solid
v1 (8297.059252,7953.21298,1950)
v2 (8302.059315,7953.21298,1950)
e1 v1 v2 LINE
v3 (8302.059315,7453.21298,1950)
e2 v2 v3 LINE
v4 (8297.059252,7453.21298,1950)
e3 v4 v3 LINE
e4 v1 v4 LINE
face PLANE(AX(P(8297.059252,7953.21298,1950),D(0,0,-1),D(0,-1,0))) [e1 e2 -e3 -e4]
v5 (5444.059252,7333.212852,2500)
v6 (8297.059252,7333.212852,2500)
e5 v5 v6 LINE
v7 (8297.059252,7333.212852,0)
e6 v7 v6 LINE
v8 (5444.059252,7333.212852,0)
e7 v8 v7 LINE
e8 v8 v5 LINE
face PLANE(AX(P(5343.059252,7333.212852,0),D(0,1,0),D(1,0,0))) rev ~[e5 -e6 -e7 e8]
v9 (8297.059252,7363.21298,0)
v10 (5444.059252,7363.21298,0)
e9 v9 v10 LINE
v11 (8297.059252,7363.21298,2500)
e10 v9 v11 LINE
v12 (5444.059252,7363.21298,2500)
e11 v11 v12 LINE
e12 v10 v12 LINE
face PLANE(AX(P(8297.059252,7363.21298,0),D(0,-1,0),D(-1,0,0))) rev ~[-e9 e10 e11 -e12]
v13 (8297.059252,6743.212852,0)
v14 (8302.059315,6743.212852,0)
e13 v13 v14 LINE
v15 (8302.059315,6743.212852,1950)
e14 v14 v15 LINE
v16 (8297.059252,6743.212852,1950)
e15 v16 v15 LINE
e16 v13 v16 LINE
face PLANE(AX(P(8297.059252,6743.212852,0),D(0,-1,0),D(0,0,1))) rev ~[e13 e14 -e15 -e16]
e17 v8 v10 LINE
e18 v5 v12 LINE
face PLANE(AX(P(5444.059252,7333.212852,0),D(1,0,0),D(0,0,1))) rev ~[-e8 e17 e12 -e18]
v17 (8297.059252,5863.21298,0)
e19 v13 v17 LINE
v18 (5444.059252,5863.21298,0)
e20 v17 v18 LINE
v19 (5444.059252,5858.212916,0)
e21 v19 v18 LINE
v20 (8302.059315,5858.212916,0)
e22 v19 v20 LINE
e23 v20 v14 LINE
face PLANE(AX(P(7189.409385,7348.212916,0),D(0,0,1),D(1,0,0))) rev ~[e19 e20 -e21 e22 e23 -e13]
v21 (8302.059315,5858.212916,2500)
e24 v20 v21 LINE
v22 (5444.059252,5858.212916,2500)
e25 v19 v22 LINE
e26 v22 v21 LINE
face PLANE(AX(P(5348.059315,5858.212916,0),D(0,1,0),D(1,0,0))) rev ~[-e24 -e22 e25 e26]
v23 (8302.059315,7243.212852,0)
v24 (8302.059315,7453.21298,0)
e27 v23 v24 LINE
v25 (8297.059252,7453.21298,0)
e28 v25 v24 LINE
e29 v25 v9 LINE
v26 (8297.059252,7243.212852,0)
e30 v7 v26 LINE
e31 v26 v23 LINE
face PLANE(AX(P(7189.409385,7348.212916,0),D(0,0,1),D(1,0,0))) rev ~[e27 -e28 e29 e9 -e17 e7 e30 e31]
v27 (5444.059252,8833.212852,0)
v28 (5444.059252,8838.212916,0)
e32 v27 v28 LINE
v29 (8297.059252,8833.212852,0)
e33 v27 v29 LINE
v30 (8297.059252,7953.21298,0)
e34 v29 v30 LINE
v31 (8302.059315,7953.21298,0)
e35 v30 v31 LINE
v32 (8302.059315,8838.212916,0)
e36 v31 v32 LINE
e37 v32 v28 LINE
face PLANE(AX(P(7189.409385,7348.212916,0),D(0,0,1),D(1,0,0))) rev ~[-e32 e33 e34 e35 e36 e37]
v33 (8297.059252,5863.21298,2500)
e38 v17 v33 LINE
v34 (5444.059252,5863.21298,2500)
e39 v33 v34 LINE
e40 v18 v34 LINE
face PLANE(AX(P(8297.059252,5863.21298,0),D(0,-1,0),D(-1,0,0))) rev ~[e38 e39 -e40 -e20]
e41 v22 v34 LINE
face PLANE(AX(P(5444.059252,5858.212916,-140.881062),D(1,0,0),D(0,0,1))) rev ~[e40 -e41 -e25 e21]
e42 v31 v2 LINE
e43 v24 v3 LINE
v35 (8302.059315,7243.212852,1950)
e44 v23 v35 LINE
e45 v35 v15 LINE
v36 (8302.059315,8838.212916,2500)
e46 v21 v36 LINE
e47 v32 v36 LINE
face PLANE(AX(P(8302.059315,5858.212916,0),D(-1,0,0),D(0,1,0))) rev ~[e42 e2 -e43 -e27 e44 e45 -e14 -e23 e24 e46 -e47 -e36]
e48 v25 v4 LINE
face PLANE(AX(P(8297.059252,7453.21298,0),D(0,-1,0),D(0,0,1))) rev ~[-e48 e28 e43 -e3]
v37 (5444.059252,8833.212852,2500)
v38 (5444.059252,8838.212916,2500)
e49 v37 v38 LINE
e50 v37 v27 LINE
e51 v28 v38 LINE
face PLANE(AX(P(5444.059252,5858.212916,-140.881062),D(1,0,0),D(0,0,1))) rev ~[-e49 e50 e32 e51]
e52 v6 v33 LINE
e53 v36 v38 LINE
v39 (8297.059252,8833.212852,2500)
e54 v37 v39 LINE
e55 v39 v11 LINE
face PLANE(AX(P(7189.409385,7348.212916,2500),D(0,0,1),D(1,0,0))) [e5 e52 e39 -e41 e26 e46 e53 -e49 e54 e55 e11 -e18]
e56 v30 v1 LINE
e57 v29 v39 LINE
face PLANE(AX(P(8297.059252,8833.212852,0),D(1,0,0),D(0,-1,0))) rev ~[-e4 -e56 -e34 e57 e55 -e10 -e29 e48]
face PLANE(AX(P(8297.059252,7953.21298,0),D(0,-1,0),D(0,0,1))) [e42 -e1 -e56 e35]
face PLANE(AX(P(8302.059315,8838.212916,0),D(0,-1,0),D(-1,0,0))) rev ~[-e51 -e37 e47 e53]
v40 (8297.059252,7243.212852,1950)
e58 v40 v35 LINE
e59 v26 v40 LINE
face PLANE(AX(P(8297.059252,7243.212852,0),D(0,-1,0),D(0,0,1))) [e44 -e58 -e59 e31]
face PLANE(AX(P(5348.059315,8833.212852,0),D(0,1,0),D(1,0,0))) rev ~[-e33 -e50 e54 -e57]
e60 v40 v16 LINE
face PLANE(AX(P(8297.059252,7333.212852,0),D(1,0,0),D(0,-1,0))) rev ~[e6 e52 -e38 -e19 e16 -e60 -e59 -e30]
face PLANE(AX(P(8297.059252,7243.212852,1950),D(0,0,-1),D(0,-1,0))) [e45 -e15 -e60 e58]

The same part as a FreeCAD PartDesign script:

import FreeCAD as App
import Part
import Sketcher


def add_polygon(sketch, points):
    """Adds a closed chain of lines whose ends are joined by coincident constraints."""
    first, n = sketch.GeometryCount, len(points)
    for a, b in zip(points, points[1:] + points[:1]):
        sketch.addGeometry(Part.LineSegment(App.Vector(*a, 0), App.Vector(*b, 0)), False)
    for i in range(n):
        sketch.addConstraint(Sketcher.Constraint("Coincident", first + i, 2, first + (i + 1) % n, 1))

doc = App.newDocument("Part")
params = doc.addObject("Spreadsheet::Sheet", "Params")
for row, (alias, value) in enumerate([
    ("sketch1_width", "2954 mm"),
    ("sketch1_height", "2980 mm"),
    ("pad1_length", "2500 mm"),
    ("sketch2_width", "500 mm"),
    ("sketch2_height", "1950 mm"),
    ("pocket1_length", "300 mm"),
    ("sketch3_width", "101 mm"),
    ("sketch3_height", "2500 mm"),
    ("pocket2_length", "460 mm"),
    ("pocket3_length", "4630 mm"),
], start=1):
    params.set(f"A{row}", alias)
    params.set(f"B{row}", "=" + value)
    params.setAlias(f"B{row}", alias)

body = doc.addObject("PartDesign::Body", "Body")

# Sketch on XY plane
sketch1 = doc.addObject("Sketcher::SketchObject", "Sketch")
body.addObject(sketch1)
sketch1.AttachmentSupport = (doc.XY_Plane, [""])
sketch1.MapMode = "FlatFace"
add_polygon(sketch1, [(5348.059315, 5858.212916), (8302.059315, 5858.212916), (8302.059315, 8838.212916), (5348.059315, 8838.212916), (5348.059315, 8833.212852), (8297.059252, 8833.212852), (8297.059252, 7363.21298), (5343.059252, 7363.21298), (5343.059252, 7333.212852), (8297.059252, 7333.212852), (8297.059252, 5863.21298), (5348.059315, 5863.21298)])  # lines 0-11
sketch1.addConstraint(Sketcher.Constraint("Horizontal", 0))
sketch1.addConstraint(Sketcher.Constraint("Vertical", 1))
sketch1.addConstraint(Sketcher.Constraint("Horizontal", 2))
sketch1.addConstraint(Sketcher.Constraint("Vertical", 3))
sketch1.addConstraint(Sketcher.Constraint("Horizontal", 4))
sketch1.addConstraint(Sketcher.Constraint("Vertical", 5))
sketch1.addConstraint(Sketcher.Constraint("Horizontal", 6))
sketch1.addConstraint(Sketcher.Constraint("Vertical", 7))
sketch1.addConstraint(Sketcher.Constraint("Horizontal", 8))
sketch1.addConstraint(Sketcher.Constraint("Vertical", 9))
sketch1.addConstraint(Sketcher.Constraint("Horizontal", 10))
sketch1.addConstraint(Sketcher.Constraint("Vertical", 11))
sketch1.addConstraint(Sketcher.Constraint("Vertical", 5, 2, 8, 2))
sketch1.addConstraint(Sketcher.Constraint("Vertical", 3, 2, 10, 2))
sketch1.addConstraint(Sketcher.Constraint("Equal", 2, 6))
sketch1.addConstraint(Sketcher.Constraint("Equal", 5, 9))
sketch1.addConstraint(Sketcher.Constraint("Equal", 3, 11))
sketch1.addConstraint(Sketcher.Constraint("DistanceX", 0, 1, 0, 2, 2954.0))
sketch1.addConstraint(Sketcher.Constraint("DistanceY", 1, 1, 1, 2, 2980.0))
sketch1.addConstraint(Sketcher.Constraint("DistanceY", 7, 2, 3, 2, 1500.0))
sketch1.addConstraint(Sketcher.Constraint("DistanceY", 7, 2, 7, 1, 30.000128))
sketch1.addConstraint(Sketcher.Constraint("DistanceX", 4, 1, 4, 2, 2948.999937))
sketch1.addConstraint(Sketcher.Constraint("DistanceX", -1, 1, 4, 2, 8297.059252))
sketch1.addConstraint(Sketcher.Constraint("DistanceY", -1, 1, 5, 2, 7363.21298))
sketch1.setExpression("Constraints[29]", "Params.sketch1_width")
sketch1.setExpression("Constraints[30]", "Params.sketch1_height")
pad1 = doc.addObject("PartDesign::Pad", "Pad")
body.addObject(pad1)
pad1.Profile = sketch1
pad1.setExpression("Length", "Params.pad1_length")

# Sketch on YZ plane
sketch2 = doc.addObject("Sketcher::SketchObject", "Sketch001")
body.addObject(sketch2)
sketch2.AttachmentSupport = (doc.YZ_Plane, [""])
sketch2.MapMode = "FlatFace"
sketch2.AttachmentOffset = App.Placement(App.Vector(0, 0, 8297.059252), App.Rotation())
add_polygon(sketch2, [(7953.21298, 1950), (7953.21298, 0), (7453.21298, 0), (7453.21298, 1950)])  # lines 0-3
add_polygon(sketch2, [(7243.212852, 1950), (7243.212852, 0), (6743.212852, 0), (6743.212852, 1950)])  # lines 4-7
sketch2.addConstraint(Sketcher.Constraint("Vertical", 0))
sketch2.addConstraint(Sketcher.Constraint("Horizontal", 1))
sketch2.addConstraint(Sketcher.Constraint("Vertical", 2))
sketch2.addConstraint(Sketcher.Constraint("Horizontal", 3))
sketch2.addConstraint(Sketcher.Constraint("Vertical", 4))
sketch2.addConstraint(Sketcher.Constraint("Horizontal", 5))
sketch2.addConstraint(Sketcher.Constraint("Vertical", 6))
sketch2.addConstraint(Sketcher.Constraint("Horizontal", 7))
sketch2.addConstraint(Sketcher.Constraint("PointOnObject", 0, 2, -1))
sketch2.addConstraint(Sketcher.Constraint("PointOnObject", 4, 2, -1))
sketch2.addConstraint(Sketcher.Constraint("Horizontal", 3, 2, 6, 2))
sketch2.addConstraint(Sketcher.Constraint("Equal", 3, 5))
sketch2.addConstraint(Sketcher.Constraint("DistanceX", 1, 2, 1, 1, 500.0))
sketch2.addConstraint(Sketcher.Constraint("DistanceY", 0, 2, 0, 1, 1950.0))
sketch2.addConstraint(Sketcher.Constraint("DistanceX", -1, 1, 0, 2, 7953.21298))
sketch2.addConstraint(Sketcher.Constraint("DistanceX", -1, 1, 4, 2, 7243.212852))
sketch2.setExpression("Constraints[20]", "Params.sketch2_width")
sketch2.setExpression("Constraints[21]", "Params.sketch2_height")
pocket1 = doc.addObject("PartDesign::Pocket", "Pocket")
body.addObject(pocket1)
pocket1.Profile = sketch2
pocket1.setExpression("Length", "Params.pocket1_length")
pocket1.Reversed = True

# Sketch on XZ plane
sketch3 = doc.addObject("Sketcher::SketchObject", "Sketch002")
body.addObject(sketch3)
sketch3.AttachmentSupport = (doc.XZ_Plane, [""])
sketch3.MapMode = "FlatFace"
sketch3.AttachmentOffset = App.Placement(App.Vector(0, 0, -7333.212852), App.Rotation())
add_polygon(sketch3, [(5343.059252, 2500), (5343.059252, 0), (5444.059252, 0), (5444.059252, 2500)])  # lines 0-3
sketch3.addConstraint(Sketcher.Constraint("Vertical", 0))
sketch3.addConstraint(Sketcher.Constraint("Horizontal", 1))
sketch3.addConstraint(Sketcher.Constraint("Vertical", 2))
sketch3.addConstraint(Sketcher.Constraint("Horizontal", 3))
sketch3.addConstraint(Sketcher.Constraint("PointOnObject", 0, 2, -1))
sketch3.addConstraint(Sketcher.Constraint("DistanceX", 1, 1, 1, 2, 101.0))
sketch3.addConstraint(Sketcher.Constraint("DistanceY", 0, 2, 0, 1, 2500.0))
sketch3.addConstraint(Sketcher.Constraint("DistanceX", -1, 1, 0, 2, 5343.059252))
sketch3.setExpression("Constraints[9]", "Params.sketch3_width")
sketch3.setExpression("Constraints[10]", "Params.sketch3_height")
pocket2 = doc.addObject("PartDesign::Pocket", "Pocket001")
body.addObject(pocket2)
pocket2.Profile = sketch3
pocket2.setExpression("Length", "Params.pocket2_length")

# Sketch on XZ plane
sketch4 = doc.addObject("Sketcher::SketchObject", "Sketch003")
body.addObject(sketch4)
sketch4.AttachmentSupport = (doc.XZ_Plane, [""])
sketch4.MapMode = "FlatFace"
sketch4.AttachmentOffset = App.Placement(App.Vector(0, 0, -5858.212916), App.Rotation())
add_polygon(sketch4, [(5444.059252, 2649.641752), (5038.322449, 2649.641752), (5038.322449, -210.067511), (5444.059252, -140.881062)])  # lines 0-3
sketch4.addConstraint(Sketcher.Constraint("Horizontal", 0))
sketch4.addConstraint(Sketcher.Constraint("Vertical", 1))
sketch4.addConstraint(Sketcher.Constraint("Vertical", 3))
sketch4.addConstraint(Sketcher.Constraint("Distance", 2, 411.593389))
sketch4.addConstraint(Sketcher.Constraint("DistanceX", 0, 2, 0, 1, 405.736803))
sketch4.addConstraint(Sketcher.Constraint("DistanceY", 1, 2, 1, 1, 2859.709263))
sketch4.addConstraint(Sketcher.Constraint("DistanceX", -1, 1, 0, 2, 5038.322449))
sketch4.addConstraint(Sketcher.Constraint("DistanceY", 1, 2, -1, 1, 210.067511))
pocket3 = doc.addObject("PartDesign::Pocket", "Pocket002")
body.addObject(pocket3)
pocket3.Profile = sketch4
pocket3.setExpression("Length", "Params.pocket3_length")

doc.recompute()
